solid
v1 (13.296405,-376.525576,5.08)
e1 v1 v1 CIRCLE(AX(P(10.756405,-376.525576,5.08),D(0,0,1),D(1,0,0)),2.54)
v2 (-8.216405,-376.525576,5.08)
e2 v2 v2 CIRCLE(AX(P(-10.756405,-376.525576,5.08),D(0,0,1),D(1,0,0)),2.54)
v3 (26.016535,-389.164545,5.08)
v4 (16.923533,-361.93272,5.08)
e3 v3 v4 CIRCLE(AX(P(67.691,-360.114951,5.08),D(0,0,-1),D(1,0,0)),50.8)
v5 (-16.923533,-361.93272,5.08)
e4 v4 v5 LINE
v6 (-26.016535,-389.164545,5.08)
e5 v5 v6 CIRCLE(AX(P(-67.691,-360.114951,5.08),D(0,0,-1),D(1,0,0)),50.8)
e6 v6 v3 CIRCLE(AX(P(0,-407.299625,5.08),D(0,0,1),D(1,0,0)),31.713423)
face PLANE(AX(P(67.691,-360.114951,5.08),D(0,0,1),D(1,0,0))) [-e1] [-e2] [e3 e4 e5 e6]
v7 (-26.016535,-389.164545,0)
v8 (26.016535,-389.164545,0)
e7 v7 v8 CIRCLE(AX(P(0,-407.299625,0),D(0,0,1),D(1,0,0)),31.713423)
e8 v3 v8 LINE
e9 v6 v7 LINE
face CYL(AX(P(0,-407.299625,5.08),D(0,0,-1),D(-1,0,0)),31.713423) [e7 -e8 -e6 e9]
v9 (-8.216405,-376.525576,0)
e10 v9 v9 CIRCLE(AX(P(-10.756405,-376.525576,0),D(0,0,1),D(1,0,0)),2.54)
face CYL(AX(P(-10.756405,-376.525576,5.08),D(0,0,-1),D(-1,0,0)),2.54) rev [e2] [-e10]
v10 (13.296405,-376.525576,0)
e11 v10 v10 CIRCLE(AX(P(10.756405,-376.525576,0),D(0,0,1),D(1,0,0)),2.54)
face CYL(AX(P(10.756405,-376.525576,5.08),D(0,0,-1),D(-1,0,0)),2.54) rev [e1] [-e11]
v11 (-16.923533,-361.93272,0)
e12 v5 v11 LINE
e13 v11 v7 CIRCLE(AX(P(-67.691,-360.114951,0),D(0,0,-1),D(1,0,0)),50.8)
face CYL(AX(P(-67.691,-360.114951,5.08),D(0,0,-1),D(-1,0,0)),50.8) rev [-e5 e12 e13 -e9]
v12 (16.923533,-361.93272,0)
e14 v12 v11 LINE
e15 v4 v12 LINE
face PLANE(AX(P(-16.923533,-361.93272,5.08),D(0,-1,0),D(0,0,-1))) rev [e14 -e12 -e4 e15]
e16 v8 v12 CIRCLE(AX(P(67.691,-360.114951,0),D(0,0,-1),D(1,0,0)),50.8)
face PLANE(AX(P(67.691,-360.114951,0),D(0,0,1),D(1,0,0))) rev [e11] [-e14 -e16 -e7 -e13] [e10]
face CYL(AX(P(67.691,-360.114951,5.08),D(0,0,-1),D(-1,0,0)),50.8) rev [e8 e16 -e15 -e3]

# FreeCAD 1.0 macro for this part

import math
import FreeCAD as App
import Part
import Sketcher

V = App.Vector
Q = App.Units.Quantity

doc = App.newDocument("Part")
body = doc.addObject("PartDesign::Body", "Body")

sketch1 = body.newObject("Sketcher::SketchObject", "Sketch")
sketch1.AttachmentSupport = (doc.getObject("XY_Plane"), [""])
sketch1.MapMode = "FlatFace"
sketch1.addGeometry([
    Part.LineSegment(V(16.9, -361.9, 0), V(-16.9, -361.9, 0)),
    Part.ArcOfCircle(Part.Circle(V(-67.7, -360.1, 0), V(0, 0, 1), 50.8), math.radians(-35), math.radians(-2)),
    Part.ArcOfCircle(Part.Circle(V(0, -407.3, 0), V(0, 0, 1), 31.7), math.radians(145), math.radians(395)),
    Part.ArcOfCircle(Part.Circle(V(67.7, -360.1, 0), V(0, 0, 1), 50.8), math.radians(-178), math.radians(-145)),
    Part.Circle(V(10.8, -376.5, 0), V(0, 0, 1), 2.5),
    Part.Circle(V(-10.8, -376.5, 0), V(0, 0, 1), 2.5),
], False)
sketch1.addConstraint([
    Sketcher.Constraint("Coincident", 0, 2, 1, 2),
    Sketcher.Constraint("Tangent", 1, 1, 2, 1),
    Sketcher.Constraint("Tangent", 2, 2, 3, 2),
    Sketcher.Constraint("Coincident", 3, 1, 0, 1),
    Sketcher.Constraint("Horizontal", 0),
    Sketcher.Constraint("Equal", 1, 3),
    Sketcher.Constraint("Equal", 4, 5),
    Sketcher.Constraint("Symmetric", 1, 3, 3, 3, -2),
    Sketcher.Constraint("Symmetric", 4, 3, 5, 3, -2),
    Sketcher.Constraint("Radius", 1, Q("2 in")),
    Sketcher.Constraint("Diameter", 4, Q("0.2 in")),
    Sketcher.Constraint("DistanceX", 1, 3, 3, 3, Q("5.33 in")),
    Sketcher.Constraint("Radius", 2, 31.713423),
    Sketcher.Constraint("DistanceX", 0, 2, 0, 1, 33.847066),
    Sketcher.Constraint("DistanceY", 1, 3, -1, 1, 360.114951),
    Sketcher.Constraint("DistanceY", 2, 3, 4, 3, 30.774049),
    Sketcher.Constraint("DistanceX", 5, 3, 4, 3, 21.51281),
])
pad1 = body.newObject("PartDesign::Pad", "Pad")
pad1.Profile = sketch1
pad1.Length = Q("0.2 in")

doc.recompute()
